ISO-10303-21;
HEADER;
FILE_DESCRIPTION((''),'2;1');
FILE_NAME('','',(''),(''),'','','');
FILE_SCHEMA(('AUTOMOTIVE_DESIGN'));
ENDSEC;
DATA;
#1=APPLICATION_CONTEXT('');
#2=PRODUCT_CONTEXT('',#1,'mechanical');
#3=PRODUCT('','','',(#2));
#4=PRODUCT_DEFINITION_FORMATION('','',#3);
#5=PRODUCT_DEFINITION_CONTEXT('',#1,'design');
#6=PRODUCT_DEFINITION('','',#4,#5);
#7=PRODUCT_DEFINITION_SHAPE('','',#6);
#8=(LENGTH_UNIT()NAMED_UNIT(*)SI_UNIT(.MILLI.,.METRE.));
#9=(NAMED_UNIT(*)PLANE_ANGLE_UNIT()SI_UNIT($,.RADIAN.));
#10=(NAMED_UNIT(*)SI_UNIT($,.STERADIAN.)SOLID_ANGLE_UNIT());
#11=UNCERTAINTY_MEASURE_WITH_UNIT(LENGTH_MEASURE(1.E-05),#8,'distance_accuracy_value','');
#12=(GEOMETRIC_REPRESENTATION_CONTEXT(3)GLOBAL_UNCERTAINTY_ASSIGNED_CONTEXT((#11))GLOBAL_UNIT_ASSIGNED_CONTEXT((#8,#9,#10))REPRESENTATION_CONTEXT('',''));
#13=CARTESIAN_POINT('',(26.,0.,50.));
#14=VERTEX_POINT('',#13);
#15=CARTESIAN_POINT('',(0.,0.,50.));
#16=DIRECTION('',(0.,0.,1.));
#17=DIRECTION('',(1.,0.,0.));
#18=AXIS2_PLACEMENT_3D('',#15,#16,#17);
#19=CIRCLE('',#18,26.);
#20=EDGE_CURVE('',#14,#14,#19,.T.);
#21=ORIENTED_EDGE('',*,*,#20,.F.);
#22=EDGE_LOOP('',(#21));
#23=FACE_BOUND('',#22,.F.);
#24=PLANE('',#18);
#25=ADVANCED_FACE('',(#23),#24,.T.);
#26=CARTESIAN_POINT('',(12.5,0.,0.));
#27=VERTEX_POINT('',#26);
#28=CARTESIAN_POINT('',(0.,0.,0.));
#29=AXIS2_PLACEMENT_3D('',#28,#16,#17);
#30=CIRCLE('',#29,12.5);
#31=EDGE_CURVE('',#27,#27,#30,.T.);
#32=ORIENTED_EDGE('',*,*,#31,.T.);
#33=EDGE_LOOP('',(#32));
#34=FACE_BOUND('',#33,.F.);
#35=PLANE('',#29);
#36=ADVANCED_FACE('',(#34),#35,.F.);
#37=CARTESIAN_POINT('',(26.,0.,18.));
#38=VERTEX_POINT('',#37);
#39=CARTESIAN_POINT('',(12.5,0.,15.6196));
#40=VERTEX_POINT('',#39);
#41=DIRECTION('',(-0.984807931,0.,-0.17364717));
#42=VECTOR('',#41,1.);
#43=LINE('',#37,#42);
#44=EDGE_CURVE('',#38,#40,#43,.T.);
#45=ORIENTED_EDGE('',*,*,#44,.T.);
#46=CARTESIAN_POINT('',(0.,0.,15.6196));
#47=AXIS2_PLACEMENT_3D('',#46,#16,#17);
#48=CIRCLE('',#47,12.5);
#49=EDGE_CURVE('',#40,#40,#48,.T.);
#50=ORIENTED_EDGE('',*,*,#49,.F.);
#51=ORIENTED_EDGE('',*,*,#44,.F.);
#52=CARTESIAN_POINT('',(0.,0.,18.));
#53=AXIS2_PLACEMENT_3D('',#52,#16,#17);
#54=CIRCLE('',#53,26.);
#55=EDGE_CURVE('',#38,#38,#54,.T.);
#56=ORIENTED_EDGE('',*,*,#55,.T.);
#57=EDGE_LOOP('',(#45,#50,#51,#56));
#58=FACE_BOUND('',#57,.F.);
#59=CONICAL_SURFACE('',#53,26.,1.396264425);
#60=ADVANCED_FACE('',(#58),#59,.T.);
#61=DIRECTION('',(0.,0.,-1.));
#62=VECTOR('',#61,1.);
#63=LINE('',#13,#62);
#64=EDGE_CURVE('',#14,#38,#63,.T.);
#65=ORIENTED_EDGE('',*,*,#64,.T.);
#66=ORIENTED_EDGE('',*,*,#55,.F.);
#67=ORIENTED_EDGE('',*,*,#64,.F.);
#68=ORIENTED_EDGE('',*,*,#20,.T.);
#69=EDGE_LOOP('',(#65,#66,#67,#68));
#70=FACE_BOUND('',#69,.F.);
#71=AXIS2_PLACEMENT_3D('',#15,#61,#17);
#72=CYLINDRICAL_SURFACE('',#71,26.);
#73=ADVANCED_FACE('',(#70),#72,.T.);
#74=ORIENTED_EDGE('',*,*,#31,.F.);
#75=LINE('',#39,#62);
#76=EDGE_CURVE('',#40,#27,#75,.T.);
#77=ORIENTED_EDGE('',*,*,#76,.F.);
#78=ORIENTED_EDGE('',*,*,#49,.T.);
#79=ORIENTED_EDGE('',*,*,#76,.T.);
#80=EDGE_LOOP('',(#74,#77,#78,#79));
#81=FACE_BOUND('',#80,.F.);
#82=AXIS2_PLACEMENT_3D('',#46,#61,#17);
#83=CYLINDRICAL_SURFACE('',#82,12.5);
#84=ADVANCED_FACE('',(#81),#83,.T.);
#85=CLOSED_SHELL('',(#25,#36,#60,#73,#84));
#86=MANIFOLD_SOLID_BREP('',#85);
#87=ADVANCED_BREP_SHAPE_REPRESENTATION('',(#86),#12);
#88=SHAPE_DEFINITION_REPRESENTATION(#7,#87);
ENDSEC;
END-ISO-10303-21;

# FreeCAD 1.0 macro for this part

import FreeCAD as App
import Part
import Sketcher

V = App.Vector
Q = App.Units.Quantity

doc = App.newDocument("Part")
body = doc.addObject("PartDesign::Body", "Body")

sketch1 = body.newObject("Sketcher::SketchObject", "Sketch")
sketch1.AttachmentSupport = (doc.getObject("XZ_Plane"), [""])
sketch1.MapMode = "FlatFace"
sketch1.addGeometry(Part.LineSegment(V(12, 0, 0), V(0, 0, 0)), False)
sketch1.addGeometry(Part.LineSegment(V(0, 0, 0), V(0, 50, 0)), False)
sketch1.addGeometry(Part.LineSegment(V(0, 50, 0), V(26, 50, 0)), False)
sketch1.addGeometry(Part.LineSegment(V(26, 50, 0), V(26, 18, 0)), False)
sketch1.addGeometry(Part.LineSegment(V(26, 18, 0), V(12, 16, 0)), False)
sketch1.addGeometry(Part.LineSegment(V(12, 16, 0), V(12, 0, 0)), False)
sketch1.addConstraint(Sketcher.Constraint("Coincident", 0, 2, 1, 1))
sketch1.addConstraint(Sketcher.Constraint("Coincident", 1, 2, 2, 1))
sketch1.addConstraint(Sketcher.Constraint("Coincident", 2, 2, 3, 1))
sketch1.addConstraint(Sketcher.Constraint("Coincident", 3, 2, 4, 1))
sketch1.addConstraint(Sketcher.Constraint("Coincident", 4, 2, 5, 1))
sketch1.addConstraint(Sketcher.Constraint("Coincident", 5, 2, 0, 1))
sketch1.addConstraint(Sketcher.Constraint("Horizontal", 0))
sketch1.addConstraint(Sketcher.Constraint("Vertical", 1))
sketch1.addConstraint(Sketcher.Constraint("Horizontal", 2))
sketch1.addConstraint(Sketcher.Constraint("Vertical", 3))
sketch1.addConstraint(Sketcher.Constraint("Vertical", 5))
sketch1.addConstraint(Sketcher.Constraint("Coincident", 0, 2, -1, 1))
sketch1.addConstraint(Sketcher.Constraint("DistanceY", 1, 1, 1, 2, Q("50 mm")))
sketch1.addConstraint(Sketcher.Constraint("DistanceY", 3, 2, 3, 1, Q("32 mm")))
sketch1.addConstraint(Sketcher.Constraint("DistanceX", 2, 1, 2, 2, Q("26 mm")))
sketch1.addConstraint(Sketcher.Constraint("Angle", 4, Q("-170 deg")))
sketch1.addConstraint(Sketcher.Constraint("DistanceX", 0, 2, 0, 1, Q("12.5 mm")))
revolution = body.newObject("PartDesign::Revolution", "Revolution")
revolution.Profile = sketch1
revolution.ReferenceAxis = (sketch1, ["V_Axis"])
revolution.Angle = 360

doc.recompute()
